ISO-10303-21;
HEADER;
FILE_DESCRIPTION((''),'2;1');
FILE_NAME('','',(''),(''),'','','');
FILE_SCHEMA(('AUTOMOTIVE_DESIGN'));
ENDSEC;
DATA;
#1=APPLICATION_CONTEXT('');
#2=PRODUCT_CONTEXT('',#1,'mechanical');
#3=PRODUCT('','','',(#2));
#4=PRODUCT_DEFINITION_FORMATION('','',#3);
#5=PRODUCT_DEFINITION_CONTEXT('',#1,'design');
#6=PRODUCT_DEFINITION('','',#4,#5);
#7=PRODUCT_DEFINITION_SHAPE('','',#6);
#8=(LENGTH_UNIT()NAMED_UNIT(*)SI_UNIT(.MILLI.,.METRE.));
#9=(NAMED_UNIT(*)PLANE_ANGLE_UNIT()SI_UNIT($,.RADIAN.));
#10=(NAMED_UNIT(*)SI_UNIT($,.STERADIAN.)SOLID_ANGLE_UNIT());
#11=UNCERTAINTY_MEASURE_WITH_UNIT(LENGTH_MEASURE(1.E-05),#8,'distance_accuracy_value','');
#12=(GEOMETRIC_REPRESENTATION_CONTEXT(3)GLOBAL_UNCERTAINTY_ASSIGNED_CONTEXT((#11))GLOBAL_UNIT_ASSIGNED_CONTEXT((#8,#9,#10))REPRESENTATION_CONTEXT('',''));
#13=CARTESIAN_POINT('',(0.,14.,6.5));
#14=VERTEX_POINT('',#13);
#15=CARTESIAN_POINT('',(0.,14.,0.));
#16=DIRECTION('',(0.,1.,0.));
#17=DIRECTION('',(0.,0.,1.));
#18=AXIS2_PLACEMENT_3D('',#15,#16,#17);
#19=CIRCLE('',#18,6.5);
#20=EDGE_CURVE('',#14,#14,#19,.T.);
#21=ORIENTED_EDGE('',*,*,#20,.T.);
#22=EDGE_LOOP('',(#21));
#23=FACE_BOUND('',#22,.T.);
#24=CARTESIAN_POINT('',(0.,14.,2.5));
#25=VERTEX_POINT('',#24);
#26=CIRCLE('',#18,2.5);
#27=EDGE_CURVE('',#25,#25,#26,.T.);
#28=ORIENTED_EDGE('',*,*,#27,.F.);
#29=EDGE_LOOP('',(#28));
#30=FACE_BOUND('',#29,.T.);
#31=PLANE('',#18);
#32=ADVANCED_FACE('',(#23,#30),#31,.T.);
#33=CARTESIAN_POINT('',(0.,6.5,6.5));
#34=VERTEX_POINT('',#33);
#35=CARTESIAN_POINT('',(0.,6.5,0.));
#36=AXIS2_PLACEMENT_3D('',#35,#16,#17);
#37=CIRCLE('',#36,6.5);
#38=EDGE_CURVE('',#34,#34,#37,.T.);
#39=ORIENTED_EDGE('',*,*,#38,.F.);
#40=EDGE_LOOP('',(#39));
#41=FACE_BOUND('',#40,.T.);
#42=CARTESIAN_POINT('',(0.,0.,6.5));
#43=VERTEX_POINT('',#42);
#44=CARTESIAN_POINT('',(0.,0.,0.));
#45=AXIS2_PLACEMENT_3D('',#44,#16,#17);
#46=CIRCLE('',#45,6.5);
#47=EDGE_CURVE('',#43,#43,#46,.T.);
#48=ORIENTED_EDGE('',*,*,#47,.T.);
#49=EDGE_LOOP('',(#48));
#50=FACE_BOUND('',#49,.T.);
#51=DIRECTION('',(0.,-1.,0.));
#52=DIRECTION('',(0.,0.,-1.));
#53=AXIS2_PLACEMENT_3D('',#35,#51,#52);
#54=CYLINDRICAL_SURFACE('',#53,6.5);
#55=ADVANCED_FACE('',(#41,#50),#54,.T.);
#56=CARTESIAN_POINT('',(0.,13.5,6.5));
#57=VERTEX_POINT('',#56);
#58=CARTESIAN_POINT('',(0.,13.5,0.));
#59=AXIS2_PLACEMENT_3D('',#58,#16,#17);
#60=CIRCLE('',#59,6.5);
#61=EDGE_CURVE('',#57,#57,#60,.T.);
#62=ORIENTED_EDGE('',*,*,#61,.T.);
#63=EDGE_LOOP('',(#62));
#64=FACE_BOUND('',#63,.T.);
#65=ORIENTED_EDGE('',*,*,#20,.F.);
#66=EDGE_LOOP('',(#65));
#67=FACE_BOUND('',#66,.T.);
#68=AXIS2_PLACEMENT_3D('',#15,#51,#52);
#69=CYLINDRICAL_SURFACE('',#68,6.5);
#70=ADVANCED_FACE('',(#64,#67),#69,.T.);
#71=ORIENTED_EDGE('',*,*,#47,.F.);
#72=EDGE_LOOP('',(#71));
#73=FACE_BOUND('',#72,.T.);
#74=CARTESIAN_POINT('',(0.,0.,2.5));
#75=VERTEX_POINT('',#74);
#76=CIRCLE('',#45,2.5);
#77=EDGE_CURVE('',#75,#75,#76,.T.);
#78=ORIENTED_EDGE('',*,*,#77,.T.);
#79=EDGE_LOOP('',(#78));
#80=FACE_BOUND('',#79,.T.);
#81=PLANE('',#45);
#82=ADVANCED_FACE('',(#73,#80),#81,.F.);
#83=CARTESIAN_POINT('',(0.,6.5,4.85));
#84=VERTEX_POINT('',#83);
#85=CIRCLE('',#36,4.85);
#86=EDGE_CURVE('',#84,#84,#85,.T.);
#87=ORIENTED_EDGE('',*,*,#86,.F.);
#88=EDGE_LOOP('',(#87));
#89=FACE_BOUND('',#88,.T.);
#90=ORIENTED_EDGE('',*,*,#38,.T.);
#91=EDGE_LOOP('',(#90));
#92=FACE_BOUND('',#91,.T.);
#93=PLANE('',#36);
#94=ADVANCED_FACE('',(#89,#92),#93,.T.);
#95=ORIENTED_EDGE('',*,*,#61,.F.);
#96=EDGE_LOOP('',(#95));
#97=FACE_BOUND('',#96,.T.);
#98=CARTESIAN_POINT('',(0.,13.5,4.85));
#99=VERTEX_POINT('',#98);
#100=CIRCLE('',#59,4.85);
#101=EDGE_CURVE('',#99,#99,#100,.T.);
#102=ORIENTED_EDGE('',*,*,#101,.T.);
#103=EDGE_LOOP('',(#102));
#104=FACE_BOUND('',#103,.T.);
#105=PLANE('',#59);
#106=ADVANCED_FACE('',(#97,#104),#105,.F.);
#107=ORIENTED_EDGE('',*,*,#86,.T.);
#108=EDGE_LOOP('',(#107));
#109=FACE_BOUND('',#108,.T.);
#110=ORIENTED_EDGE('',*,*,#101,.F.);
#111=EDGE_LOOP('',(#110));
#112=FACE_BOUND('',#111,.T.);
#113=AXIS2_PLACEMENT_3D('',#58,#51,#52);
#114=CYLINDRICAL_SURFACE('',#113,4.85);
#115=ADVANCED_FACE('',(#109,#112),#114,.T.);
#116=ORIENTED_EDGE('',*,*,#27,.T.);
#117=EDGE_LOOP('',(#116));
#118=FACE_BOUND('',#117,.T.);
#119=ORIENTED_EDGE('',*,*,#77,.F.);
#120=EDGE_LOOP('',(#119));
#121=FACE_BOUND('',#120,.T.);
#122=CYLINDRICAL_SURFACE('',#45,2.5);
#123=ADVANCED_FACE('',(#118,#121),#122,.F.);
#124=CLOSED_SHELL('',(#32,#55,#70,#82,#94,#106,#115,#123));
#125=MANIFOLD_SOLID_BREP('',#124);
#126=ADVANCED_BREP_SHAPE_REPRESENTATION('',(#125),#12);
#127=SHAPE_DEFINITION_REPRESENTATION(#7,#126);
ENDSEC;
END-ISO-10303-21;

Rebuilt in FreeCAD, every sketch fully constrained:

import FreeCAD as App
import Part
import Sketcher
Q = App.Units.Quantity

doc = App.newDocument("Part")
body = doc.addObject("PartDesign::Body", "Body")

sketch1 = body.newObject("Sketcher::SketchObject", "Sketch")
sketch1.AttachmentSupport = (doc.getObject("XZ_Plane"), [""])
sketch1.MapMode = "FlatFace"
sketch1.addGeometry(Part.Circle(App.Vector(0, 0, 0), App.Vector(0, 0, 1), 6), False)
sketch1.addConstraint([
    Sketcher.Constraint("Coincident", 0, 3, -1, 1),
    Sketcher.Constraint("Diameter", 0, Q("13 mm")),
])
pad1 = body.newObject("PartDesign::Pad", "Pad")
pad1.Profile = sketch1
pad1.Length = 6.5
pad1.Reversed = True

sketch2 = body.newObject("Sketcher::SketchObject", "Sketch001")
sketch2.AttachmentSupport = (doc.getObject("XZ_Plane"), [""])
sketch2.MapMode = "FlatFace"
sketch2.AttachmentOffset = App.Placement(App.Vector(0, 0, -6.5), App.Rotation())
sketch2.addGeometry(Part.Circle(App.Vector(0, 0, 0), App.Vector(0, 0, 1), 4.8), False)
sketch2.addConstraint([
    Sketcher.Constraint("Coincident", 0, 3, -1, 1),
    Sketcher.Constraint("Diameter", 0, Q("9.7 mm")),
])
pad2 = body.newObject("PartDesign::Pad", "Pad001")
pad2.Profile = sketch2
pad2.Length = 7
pad2.Reversed = True

sketch3 = body.newObject("Sketcher::SketchObject", "Sketch002")
sketch3.AttachmentSupport = (doc.getObject("XZ_Plane"), [""])
sketch3.MapMode = "FlatFace"
sketch3.AttachmentOffset = App.Placement(App.Vector(0, 0, -13.5), App.Rotation())
sketch3.addGeometry(Part.Circle(App.Vector(0, 0, 0), App.Vector(0, 0, 1), 6), False)
sketch3.addConstraint([
    Sketcher.Constraint("Coincident", 0, 3, -1, 1),
    Sketcher.Constraint("Diameter", 0, Q("13 mm")),
])
pad3 = body.newObject("PartDesign::Pad", "Pad002")
pad3.Profile = sketch3
pad3.Length = 0.5
pad3.Reversed = True

sketch4 = body.newObject("Sketcher::SketchObject", "Sketch003")
sketch4.AttachmentSupport = (doc.getObject("XZ_Plane"), [""])
sketch4.MapMode = "FlatFace"
sketch4.AttachmentOffset = App.Placement(App.Vector(0, 0, -14), App.Rotation())
sketch4.addGeometry(Part.Circle(App.Vector(0, 0, 0), App.Vector(0, 0, 1), 2.5), False)
sketch4.addConstraint([
    Sketcher.Constraint("Coincident", 0, 3, -1, 1),
    Sketcher.Constraint("Diameter", 0, Q("5 mm")),
])
pocket1 = body.newObject("PartDesign::Pocket", "Pocket")
pocket1.Profile = sketch4
pocket1.Type = "ThroughAll"
pocket1.Reversed = True

doc.recompute()
